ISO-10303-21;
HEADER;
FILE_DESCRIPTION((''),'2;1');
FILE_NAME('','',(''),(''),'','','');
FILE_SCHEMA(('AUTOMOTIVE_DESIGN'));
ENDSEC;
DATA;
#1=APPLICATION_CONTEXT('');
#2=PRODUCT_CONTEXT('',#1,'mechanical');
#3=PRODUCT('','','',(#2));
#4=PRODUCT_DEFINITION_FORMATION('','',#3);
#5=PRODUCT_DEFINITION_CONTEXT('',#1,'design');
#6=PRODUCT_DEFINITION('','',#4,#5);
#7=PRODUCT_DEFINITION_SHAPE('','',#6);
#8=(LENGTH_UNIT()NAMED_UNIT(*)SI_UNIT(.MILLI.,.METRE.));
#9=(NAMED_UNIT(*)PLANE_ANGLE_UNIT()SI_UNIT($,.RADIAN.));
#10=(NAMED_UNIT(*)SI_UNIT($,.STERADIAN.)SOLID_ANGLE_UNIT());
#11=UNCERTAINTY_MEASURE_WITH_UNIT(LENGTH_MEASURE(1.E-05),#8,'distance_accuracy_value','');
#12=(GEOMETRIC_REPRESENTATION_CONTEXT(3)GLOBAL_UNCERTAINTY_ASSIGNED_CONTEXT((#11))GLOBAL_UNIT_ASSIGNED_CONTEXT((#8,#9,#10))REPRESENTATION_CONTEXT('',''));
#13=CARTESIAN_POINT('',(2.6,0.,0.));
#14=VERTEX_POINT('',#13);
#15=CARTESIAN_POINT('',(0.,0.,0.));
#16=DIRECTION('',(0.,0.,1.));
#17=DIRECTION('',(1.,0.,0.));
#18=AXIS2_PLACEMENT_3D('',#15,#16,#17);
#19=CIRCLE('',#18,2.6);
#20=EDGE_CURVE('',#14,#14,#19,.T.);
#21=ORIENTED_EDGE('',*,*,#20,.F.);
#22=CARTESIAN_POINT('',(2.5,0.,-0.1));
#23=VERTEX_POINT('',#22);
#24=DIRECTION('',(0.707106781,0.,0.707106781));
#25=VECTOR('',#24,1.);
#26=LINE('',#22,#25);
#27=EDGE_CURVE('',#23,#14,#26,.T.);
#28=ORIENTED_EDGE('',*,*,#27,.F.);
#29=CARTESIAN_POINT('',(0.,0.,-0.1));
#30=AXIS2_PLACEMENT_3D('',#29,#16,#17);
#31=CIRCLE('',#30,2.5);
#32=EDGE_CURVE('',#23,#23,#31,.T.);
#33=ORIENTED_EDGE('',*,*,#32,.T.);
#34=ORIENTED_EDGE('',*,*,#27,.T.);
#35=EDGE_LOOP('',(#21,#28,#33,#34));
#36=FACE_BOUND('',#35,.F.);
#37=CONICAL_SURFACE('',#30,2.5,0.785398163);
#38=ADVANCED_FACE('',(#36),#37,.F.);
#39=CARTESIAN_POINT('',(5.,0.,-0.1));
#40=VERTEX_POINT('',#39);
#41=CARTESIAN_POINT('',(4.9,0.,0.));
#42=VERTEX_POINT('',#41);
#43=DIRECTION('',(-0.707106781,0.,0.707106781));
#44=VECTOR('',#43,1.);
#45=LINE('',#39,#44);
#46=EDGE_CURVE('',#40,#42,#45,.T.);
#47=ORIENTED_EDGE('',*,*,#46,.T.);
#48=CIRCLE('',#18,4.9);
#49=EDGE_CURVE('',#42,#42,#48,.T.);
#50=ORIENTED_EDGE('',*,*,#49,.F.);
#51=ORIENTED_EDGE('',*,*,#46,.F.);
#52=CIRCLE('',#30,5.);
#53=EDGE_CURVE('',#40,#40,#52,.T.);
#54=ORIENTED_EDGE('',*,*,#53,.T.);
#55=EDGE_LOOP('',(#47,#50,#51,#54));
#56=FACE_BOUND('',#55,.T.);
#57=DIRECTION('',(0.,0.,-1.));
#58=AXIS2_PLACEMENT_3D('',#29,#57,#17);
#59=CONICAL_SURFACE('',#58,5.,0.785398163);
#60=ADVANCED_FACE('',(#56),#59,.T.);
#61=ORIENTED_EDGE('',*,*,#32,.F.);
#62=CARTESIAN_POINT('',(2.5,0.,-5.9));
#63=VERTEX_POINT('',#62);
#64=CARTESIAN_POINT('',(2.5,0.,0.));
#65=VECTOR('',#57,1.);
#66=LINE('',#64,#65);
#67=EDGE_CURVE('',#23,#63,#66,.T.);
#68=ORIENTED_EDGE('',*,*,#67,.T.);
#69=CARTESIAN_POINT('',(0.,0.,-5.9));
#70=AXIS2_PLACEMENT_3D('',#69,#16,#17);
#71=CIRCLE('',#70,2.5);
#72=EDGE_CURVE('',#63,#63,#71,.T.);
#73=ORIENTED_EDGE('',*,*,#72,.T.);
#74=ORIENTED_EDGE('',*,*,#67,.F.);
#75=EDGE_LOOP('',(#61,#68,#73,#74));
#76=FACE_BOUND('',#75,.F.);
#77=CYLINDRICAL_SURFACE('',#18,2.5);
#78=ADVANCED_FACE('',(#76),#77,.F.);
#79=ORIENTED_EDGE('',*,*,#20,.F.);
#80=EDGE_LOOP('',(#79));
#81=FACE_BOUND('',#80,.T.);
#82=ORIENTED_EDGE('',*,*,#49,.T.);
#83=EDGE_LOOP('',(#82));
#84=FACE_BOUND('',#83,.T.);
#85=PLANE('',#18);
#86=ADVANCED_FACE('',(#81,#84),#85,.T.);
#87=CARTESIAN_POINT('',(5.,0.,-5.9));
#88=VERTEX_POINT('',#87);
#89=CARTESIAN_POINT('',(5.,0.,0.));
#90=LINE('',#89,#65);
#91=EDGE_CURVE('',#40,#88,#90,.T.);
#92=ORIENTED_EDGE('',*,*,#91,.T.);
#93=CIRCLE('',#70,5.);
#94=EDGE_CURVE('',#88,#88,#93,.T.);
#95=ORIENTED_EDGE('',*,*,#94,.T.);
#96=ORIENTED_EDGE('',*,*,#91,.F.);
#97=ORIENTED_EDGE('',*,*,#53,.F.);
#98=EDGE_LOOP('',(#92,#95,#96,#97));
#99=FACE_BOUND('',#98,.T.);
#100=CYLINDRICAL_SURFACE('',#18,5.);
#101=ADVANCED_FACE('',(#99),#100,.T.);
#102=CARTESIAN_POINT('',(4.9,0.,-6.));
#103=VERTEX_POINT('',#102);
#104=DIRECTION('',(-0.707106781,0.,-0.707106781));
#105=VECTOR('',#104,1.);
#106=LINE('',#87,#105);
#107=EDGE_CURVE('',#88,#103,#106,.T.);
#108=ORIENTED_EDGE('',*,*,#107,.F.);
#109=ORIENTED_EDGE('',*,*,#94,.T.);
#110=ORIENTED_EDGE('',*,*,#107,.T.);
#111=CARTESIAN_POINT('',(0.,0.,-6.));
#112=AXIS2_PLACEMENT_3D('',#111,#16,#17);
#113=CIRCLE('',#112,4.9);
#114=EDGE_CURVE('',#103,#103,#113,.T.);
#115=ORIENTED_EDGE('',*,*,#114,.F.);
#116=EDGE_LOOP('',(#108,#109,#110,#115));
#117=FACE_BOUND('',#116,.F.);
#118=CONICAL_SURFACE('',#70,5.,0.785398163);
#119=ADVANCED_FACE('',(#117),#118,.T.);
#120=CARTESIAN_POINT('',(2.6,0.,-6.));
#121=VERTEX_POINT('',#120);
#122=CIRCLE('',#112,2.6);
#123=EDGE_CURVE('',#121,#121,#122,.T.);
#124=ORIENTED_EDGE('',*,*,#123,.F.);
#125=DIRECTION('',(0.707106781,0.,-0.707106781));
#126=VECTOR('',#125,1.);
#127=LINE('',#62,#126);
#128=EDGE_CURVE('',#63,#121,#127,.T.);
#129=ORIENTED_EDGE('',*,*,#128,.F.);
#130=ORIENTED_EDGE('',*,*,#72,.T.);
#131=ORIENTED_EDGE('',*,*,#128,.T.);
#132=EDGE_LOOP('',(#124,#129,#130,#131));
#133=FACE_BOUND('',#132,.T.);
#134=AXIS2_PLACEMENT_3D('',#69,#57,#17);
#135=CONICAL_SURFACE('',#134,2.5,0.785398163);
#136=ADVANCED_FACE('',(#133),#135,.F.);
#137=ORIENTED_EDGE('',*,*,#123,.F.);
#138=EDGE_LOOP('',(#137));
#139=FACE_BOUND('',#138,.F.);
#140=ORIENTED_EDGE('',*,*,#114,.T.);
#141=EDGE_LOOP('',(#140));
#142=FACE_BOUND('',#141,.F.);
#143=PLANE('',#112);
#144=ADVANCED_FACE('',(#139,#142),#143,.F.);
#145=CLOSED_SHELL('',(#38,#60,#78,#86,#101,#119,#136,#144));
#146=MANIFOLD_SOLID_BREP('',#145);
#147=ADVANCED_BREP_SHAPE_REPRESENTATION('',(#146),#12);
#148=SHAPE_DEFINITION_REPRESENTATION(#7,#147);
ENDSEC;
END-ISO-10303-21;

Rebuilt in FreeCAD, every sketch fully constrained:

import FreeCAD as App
import Part
import Sketcher
from FreeCAD import Vector
Q = App.Units.Quantity


def edges_at(feature, points):
    """Names of the edges that pass closest to the given points."""
    edges = feature.Shape.Edges
    near = lambda p: min(range(len(edges)), key=lambda i: edges[i].distToShape(Part.Vertex(*p))[0])
    return sorted({f"Edge{near(p) + 1}" for p in points})

doc = App.newDocument("Part")
body = doc.addObject("PartDesign::Body", "Body")

# Sketch on XY plane
sketch1 = body.newObject("Sketcher::SketchObject", "Sketch")
sketch1.AttachmentSupport = (doc.getObject("XY_Plane"), [""])
sketch1.MapMode = "FlatFace"
sketch1.addGeometry([
    Part.Circle(Vector(0, 0, 0), Vector(0, 0, 1), 5),
    Part.Circle(Vector(0, 0, 0), Vector(0, 0, 1), 2.5),
], False)
sketch1.addConstraint([
    Sketcher.Constraint("Coincident", 0, 3, -1, 1),
    Sketcher.Constraint("Coincident", 1, 3, -1, 1),
    Sketcher.Constraint("Diameter", 0, Q("10 mm")),
    Sketcher.Constraint("Diameter", 1, Q("5 mm")),
])
pad1 = body.newObject("PartDesign::Pad", "Pad")
pad1.Profile = sketch1
pad1.Length = 6
pad1.Reversed = True
doc.recompute()

chamfer = body.newObject("PartDesign::Chamfer", "Chamfer")
chamfer.Base = (pad1, edges_at(pad1, [
    (-5, 0, 0),
    (-5, 0, -6),
    (-2.5, 0, -6),
    (-2.5, 0, 0),
]))
chamfer.Size = 0.1

doc.recompute()
